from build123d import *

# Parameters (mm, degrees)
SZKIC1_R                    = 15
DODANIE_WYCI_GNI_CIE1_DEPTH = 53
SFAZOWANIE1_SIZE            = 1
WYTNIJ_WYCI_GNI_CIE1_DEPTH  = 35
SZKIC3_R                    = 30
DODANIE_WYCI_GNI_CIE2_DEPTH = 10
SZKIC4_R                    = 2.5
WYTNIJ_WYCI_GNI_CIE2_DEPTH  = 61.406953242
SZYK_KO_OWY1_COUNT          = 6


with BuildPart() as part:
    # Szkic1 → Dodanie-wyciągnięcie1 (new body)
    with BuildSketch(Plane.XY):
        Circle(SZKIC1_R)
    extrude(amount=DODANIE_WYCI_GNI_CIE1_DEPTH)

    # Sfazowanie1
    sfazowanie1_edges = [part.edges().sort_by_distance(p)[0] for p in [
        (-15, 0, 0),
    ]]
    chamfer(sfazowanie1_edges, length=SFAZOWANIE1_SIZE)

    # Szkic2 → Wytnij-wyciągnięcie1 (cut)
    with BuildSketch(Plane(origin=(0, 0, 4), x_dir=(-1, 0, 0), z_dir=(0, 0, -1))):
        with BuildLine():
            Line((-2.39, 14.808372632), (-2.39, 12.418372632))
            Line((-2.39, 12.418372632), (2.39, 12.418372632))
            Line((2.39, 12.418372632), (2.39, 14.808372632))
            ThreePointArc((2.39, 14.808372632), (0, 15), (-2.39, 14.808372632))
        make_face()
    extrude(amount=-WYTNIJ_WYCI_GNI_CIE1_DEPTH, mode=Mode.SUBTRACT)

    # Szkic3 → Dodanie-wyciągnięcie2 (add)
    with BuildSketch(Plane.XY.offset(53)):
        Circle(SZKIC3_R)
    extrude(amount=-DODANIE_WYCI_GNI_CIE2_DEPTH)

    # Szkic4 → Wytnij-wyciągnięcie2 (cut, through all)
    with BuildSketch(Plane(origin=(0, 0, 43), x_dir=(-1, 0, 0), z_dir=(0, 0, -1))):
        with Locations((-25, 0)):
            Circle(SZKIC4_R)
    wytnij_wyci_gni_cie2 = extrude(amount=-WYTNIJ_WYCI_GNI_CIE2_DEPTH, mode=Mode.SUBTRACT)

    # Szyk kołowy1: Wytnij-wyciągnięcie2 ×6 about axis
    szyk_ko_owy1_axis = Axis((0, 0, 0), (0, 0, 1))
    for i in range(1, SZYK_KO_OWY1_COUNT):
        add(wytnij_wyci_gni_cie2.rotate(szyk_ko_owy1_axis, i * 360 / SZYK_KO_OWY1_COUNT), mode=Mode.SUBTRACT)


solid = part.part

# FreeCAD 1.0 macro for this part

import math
import FreeCAD as App
import Part
import Sketcher

V = App.Vector


def edges_at(feature, points):
    """Names of the edges that pass closest to the given points."""
    edges = feature.Shape.Edges
    near = lambda p: min(range(len(edges)), key=lambda i: edges[i].distToShape(Part.Vertex(*p))[0])
    return sorted({f"Edge{near(p) + 1}" for p in points})

doc = App.newDocument("Part")
body = doc.addObject("PartDesign::Body", "Body")

# Sketch on XY plane
sketch1 = doc.addObject("Sketcher::SketchObject", "Sketch")
body.addObject(sketch1)
sketch1.AttachmentSupport = (doc.XY_Plane, [""])
sketch1.MapMode = "FlatFace"
sketch1.addGeometry(Part.Circle(V(0, 0, 0), V(0, 0, 1), 15), False)
sketch1.addConstraint(Sketcher.Constraint("Coincident", 0, 3, -1, 1))
sketch1.addConstraint(Sketcher.Constraint("Diameter", 0, 30.0))
pad1 = doc.addObject("PartDesign::Pad", "Pad")
body.addObject(pad1)
pad1.Profile = sketch1
pad1.Length = 53
doc.recompute()

chamfer = doc.addObject("PartDesign::Chamfer", "Chamfer")
body.addObject(chamfer)
chamfer.Base = (pad1, edges_at(pad1, [(-15, 0, 0)]))
chamfer.Size = 1

# Sketch on XY plane
sketch2 = doc.addObject("Sketcher::SketchObject", "Sketch001")
body.addObject(sketch2)
sketch2.AttachmentSupport = (doc.XY_Plane, [""])
sketch2.MapMode = "FlatFace"
sketch2.AttachmentOffset = App.Placement(V(0, 0, 4), App.Rotation())
sketch2.addGeometry(Part.LineSegment(V(2.4, 14.8, 0), V(2.4, 12.4, 0)), False)
sketch2.addGeometry(Part.LineSegment(V(2.4, 12.4, 0), V(-2.4, 12.4, 0)), False)
sketch2.addGeometry(Part.LineSegment(V(-2.4, 12.4, 0), V(-2.4, 14.8, 0)), False)
sketch2.addGeometry(Part.ArcOfCircle(Part.Circle(V(0, 0, 0), V(0, 0, 1), 15), math.radians(80.83), math.radians(99.17)), False)
sketch2.addConstraint(Sketcher.Constraint("Coincident", 0, 2, 1, 1))
sketch2.addConstraint(Sketcher.Constraint("Coincident", 1, 2, 2, 1))
sketch2.addConstraint(Sketcher.Constraint("Coincident", 2, 2, 3, 2))
sketch2.addConstraint(Sketcher.Constraint("Coincident", 3, 1, 0, 1))
sketch2.addConstraint(Sketcher.Constraint("Vertical", 0))
sketch2.addConstraint(Sketcher.Constraint("Horizontal", 1))
sketch2.addConstraint(Sketcher.Constraint("Vertical", 2))
sketch2.addConstraint(Sketcher.Constraint("Coincident", 3, 3, -1, 1))
sketch2.addConstraint(Sketcher.Constraint("Horizontal", 2, 2, 3, 1))
sketch2.addConstraint(Sketcher.Constraint("Radius", 3, 15.0))
sketch2.addConstraint(Sketcher.Constraint("DistanceX", 1, 2, 1, 1, 4.78))
sketch2.addConstraint(Sketcher.Constraint("DistanceY", 0, 2, 0, 1, 2.39))
pocket1 = doc.addObject("PartDesign::Pocket", "Pocket")
body.addObject(pocket1)
pocket1.Profile = sketch2
pocket1.Length = 35
pocket1.Reversed = True

# Sketch on XY plane
sketch3 = doc.addObject("Sketcher::SketchObject", "Sketch002")
body.addObject(sketch3)
sketch3.AttachmentSupport = (doc.XY_Plane, [""])
sketch3.MapMode = "FlatFace"
sketch3.AttachmentOffset = App.Placement(V(0, 0, 53), App.Rotation())
sketch3.addGeometry(Part.Circle(V(0, 0, 0), V(0, 0, 1), 30), False)
sketch3.addConstraint(Sketcher.Constraint("Coincident", 0, 3, -1, 1))
sketch3.addConstraint(Sketcher.Constraint("Diameter", 0, 60.0))
pad2 = doc.addObject("PartDesign::Pad", "Pad001")
body.addObject(pad2)
pad2.Profile = sketch3
pad2.Length = 10
pad2.Reversed = True

# Sketch on XY plane
sketch4 = doc.addObject("Sketcher::SketchObject", "Sketch003")
body.addObject(sketch4)
sketch4.AttachmentSupport = (doc.XY_Plane, [""])
sketch4.MapMode = "FlatFace"
sketch4.AttachmentOffset = App.Placement(V(0, 0, 43), App.Rotation())
sketch4.addGeometry(Part.Circle(V(25, 0, 0), V(0, 0, 1), 2.5), False)
sketch4.addConstraint(Sketcher.Constraint("PointOnObject", 0, 3, -1))
sketch4.addConstraint(Sketcher.Constraint("Diameter", 0, 5.0))
sketch4.addConstraint(Sketcher.Constraint("DistanceX", -1, 1, 0, 3, 25.0))
pocket2 = doc.addObject("PartDesign::Pocket", "Pocket001")
body.addObject(pocket2)
pocket2.Profile = sketch4
pocket2.Type = "ThroughAll"
pocket2.Reversed = True
doc.recompute()

polarpattern = doc.addObject("PartDesign::PolarPattern", "PolarPattern")
body.addObject(polarpattern)
polarpattern.Originals = [pocket2]
polarpattern.Axis = (doc.Z_Axis, [""])
polarpattern.Angle = 360
polarpattern.Occurrences = 6
body.Tip = polarpattern

doc.recompute()
